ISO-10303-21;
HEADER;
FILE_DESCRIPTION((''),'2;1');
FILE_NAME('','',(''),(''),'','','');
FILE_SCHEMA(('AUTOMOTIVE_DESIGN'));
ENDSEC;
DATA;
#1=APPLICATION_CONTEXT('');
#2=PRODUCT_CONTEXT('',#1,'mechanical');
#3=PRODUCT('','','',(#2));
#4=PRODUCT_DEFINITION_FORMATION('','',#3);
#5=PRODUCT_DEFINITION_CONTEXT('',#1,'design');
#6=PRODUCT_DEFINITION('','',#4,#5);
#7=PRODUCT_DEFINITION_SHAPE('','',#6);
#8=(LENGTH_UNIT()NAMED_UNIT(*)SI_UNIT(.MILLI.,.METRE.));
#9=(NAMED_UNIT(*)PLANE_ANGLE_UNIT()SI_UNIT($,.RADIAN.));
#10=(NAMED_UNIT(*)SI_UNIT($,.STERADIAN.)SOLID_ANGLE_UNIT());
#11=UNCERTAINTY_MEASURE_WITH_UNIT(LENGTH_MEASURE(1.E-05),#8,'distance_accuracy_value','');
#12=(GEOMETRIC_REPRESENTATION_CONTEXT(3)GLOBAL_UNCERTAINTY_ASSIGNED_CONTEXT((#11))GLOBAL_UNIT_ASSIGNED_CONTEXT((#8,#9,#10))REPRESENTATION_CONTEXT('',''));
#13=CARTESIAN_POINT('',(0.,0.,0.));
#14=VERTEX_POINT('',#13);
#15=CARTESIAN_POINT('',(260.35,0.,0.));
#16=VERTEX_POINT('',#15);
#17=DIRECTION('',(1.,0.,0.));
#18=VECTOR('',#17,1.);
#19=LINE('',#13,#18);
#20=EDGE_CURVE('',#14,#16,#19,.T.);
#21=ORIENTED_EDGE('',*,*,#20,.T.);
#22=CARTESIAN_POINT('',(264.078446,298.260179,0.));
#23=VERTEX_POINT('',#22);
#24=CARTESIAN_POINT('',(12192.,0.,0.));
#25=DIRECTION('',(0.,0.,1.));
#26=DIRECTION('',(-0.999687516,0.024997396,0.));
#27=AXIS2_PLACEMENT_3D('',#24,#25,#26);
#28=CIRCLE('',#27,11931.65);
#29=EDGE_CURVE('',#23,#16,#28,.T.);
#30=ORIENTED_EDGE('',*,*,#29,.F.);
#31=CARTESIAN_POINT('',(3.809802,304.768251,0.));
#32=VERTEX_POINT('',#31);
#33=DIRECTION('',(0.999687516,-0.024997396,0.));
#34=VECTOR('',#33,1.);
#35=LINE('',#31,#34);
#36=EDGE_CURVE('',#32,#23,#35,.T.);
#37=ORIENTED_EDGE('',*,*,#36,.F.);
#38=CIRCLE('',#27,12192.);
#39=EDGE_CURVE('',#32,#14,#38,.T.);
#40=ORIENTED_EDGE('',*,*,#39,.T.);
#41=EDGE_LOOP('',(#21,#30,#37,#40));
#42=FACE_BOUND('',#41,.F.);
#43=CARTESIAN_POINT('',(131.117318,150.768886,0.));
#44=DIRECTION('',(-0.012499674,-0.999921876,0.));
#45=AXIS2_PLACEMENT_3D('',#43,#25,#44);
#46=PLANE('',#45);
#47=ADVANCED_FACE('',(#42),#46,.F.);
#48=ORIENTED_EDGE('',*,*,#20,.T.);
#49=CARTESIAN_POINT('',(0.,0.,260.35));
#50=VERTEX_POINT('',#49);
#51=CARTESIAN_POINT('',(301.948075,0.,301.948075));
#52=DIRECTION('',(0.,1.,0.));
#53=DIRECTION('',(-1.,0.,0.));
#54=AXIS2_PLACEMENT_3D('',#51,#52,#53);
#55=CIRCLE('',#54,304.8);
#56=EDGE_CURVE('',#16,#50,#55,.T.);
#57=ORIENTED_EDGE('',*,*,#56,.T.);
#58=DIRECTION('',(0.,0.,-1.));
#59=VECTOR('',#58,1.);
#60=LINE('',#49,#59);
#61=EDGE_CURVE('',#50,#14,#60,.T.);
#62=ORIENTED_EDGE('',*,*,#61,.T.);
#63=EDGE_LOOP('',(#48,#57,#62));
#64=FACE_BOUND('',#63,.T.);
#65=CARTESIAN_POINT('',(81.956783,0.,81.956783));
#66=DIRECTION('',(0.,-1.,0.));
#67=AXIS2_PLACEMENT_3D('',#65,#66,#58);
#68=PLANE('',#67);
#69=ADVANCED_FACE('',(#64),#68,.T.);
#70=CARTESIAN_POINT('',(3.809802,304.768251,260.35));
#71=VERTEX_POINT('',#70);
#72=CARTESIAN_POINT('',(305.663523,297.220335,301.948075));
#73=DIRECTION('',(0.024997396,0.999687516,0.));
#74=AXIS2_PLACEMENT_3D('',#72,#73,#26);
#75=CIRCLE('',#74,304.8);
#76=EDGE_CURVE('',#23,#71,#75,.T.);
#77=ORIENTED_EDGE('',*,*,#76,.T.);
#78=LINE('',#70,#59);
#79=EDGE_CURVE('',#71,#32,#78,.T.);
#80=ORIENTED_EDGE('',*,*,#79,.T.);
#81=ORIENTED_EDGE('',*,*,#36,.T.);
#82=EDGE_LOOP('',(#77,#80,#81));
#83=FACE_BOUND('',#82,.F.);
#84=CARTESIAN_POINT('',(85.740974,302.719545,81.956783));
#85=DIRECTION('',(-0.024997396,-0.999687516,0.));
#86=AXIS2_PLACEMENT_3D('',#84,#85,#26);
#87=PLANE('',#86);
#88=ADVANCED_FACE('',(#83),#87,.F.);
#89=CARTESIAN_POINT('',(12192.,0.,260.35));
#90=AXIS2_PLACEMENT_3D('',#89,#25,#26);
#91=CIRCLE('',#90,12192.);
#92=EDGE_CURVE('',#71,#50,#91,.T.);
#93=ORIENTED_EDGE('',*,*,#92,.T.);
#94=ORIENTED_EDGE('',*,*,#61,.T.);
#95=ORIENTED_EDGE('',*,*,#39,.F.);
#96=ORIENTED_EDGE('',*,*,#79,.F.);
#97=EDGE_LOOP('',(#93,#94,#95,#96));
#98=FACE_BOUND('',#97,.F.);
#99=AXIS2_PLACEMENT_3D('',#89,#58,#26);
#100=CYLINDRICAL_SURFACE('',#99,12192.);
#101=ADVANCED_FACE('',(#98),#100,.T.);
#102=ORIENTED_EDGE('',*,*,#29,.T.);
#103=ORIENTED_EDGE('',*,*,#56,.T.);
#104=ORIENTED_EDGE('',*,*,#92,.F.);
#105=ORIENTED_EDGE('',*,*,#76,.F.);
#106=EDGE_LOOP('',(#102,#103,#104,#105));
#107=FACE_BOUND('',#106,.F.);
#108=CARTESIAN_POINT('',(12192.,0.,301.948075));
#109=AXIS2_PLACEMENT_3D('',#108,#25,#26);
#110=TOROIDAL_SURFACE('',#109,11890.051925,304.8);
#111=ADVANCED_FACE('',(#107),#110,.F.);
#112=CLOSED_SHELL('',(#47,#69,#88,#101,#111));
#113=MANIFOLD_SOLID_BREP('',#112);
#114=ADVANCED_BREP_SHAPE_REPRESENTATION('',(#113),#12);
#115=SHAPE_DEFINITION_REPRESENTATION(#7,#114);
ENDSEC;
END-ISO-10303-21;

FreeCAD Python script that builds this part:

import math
import FreeCAD as App
import Part
import Sketcher
from FreeCAD import Vector
Q = App.Units.Quantity

doc = App.newDocument("Part")
body = doc.addObject("PartDesign::Body", "Body")

# Sketch on XZ plane
sketch1 = body.newObject("Sketcher::SketchObject", "Sketch")
sketch1.AttachmentSupport = (doc.getObject("XZ_Plane"), [""])
sketch1.MapMode = "FlatFace"
sketch1.addGeometry([
    Part.LineSegment(Vector(0, 260, 0), Vector(0, 0, 0)),
    Part.LineSegment(Vector(0, 0, 0), Vector(260, 0, 0)),
    Part.ArcOfCircle(Part.Circle(Vector(302, 302, 0), Vector(0, 0, 1), 305), math.radians(-172), math.radians(-98)),
], False)
sketch1.addConstraint([
    Sketcher.Constraint("Coincident", 0, 2, 1, 1),
    Sketcher.Constraint("Coincident", 1, 2, 2, 2),
    Sketcher.Constraint("Coincident", 2, 1, 0, 1),
    Sketcher.Constraint("Vertical", 0),
    Sketcher.Constraint("Horizontal", 1),
    Sketcher.Constraint("Coincident", 0, 2, -1, 1),
    Sketcher.Constraint("Equal", 1, 0),
    Sketcher.Constraint("Radius", 2, Q("12 in")),
    Sketcher.Constraint("DistanceX", 1, 1, 1, 2, Q("10.25 in")),
])

# Sketch on XY plane
sketch2 = body.newObject("Sketcher::SketchObject", "Sketch001")
sketch2.AttachmentSupport = (doc.getObject("XY_Plane"), [""])
sketch2.MapMode = "FlatFace"
sketch2.addGeometry(Part.ArcOfCircle(Part.Circle(Vector(12192, 0, 0), Vector(0, 0, 1), 12192), math.radians(178.57), math.radians(180)), False)
sketch2.addConstraint([
    Sketcher.Constraint("Coincident", 0, 2, -1, 1),
    Sketcher.Constraint("PointOnObject", 0, 3, -1),
    Sketcher.Constraint("Radius", 0, Q("480 in")),
    Sketcher.Constraint("DistanceX", -1, 1, 0, 1, Q("3.809802 mm")),
])
doc.recompute()

additivepipe = body.newObject("PartDesign::AdditivePipe", "AdditivePipe")
additivepipe.Profile = sketch1
additivepipe.Spine = (sketch2, ["Edge1"])

doc.recompute()
